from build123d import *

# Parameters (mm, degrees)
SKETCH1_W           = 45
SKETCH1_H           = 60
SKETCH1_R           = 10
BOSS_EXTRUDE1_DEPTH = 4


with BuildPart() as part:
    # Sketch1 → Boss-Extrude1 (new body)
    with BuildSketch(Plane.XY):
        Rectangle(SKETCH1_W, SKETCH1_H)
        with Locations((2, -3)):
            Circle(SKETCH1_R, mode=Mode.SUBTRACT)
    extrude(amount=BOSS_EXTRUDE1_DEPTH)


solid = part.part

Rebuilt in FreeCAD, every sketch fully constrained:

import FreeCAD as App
import Part
import Sketcher
from FreeCAD import Vector


def add_polygon(sketch, points):
    """Adds a closed chain of lines whose ends are joined by coincident constraints."""
    first, n = sketch.GeometryCount, len(points)
    for a, b in zip(points, points[1:] + points[:1]):
        sketch.addGeometry(Part.LineSegment(App.Vector(*a, 0), App.Vector(*b, 0)), False)
    for i in range(n):
        sketch.addConstraint(Sketcher.Constraint("Coincident", first + i, 2, first + (i + 1) % n, 1))

doc = App.newDocument("Part")
body = doc.addObject("PartDesign::Body", "Body")

# Sketch on XY plane
sketch1 = doc.addObject("Sketcher::SketchObject", "Sketch")
body.addObject(sketch1)
sketch1.AttachmentSupport = (doc.XY_Plane, [""])
sketch1.MapMode = "FlatFace"
add_polygon(sketch1, [(-22, 30), (-22, -30), (22, -30), (22, 30)])  # lines 0-3
sketch1.addGeometry(Part.Circle(Vector(2, -3, 0), Vector(0, 0, 1), 10), False)  # 4
sketch1.addConstraint(Sketcher.Constraint("Vertical", 0))
sketch1.addConstraint(Sketcher.Constraint("Horizontal", 1))
sketch1.addConstraint(Sketcher.Constraint("Vertical", 2))
sketch1.addConstraint(Sketcher.Constraint("Horizontal", 3))
sketch1.addConstraint(Sketcher.Constraint("Symmetric", 0, 2, 2, 2, -1, 1))
sketch1.addConstraint(Sketcher.Constraint("Diameter", 4, 20.0))
sketch1.addConstraint(Sketcher.Constraint("DistanceX", 1, 1, 1, 2, 45.0))
sketch1.addConstraint(Sketcher.Constraint("DistanceY", 0, 2, 0, 1, 60.0))
sketch1.addConstraint(Sketcher.Constraint("DistanceX", -1, 1, 4, 3, 2.0))
sketch1.addConstraint(Sketcher.Constraint("DistanceY", 4, 3, -1, 1, 3.0))
pad1 = doc.addObject("PartDesign::Pad", "Pad")
body.addObject(pad1)
pad1.Profile = sketch1
pad1.Length = 4

doc.recompute()
